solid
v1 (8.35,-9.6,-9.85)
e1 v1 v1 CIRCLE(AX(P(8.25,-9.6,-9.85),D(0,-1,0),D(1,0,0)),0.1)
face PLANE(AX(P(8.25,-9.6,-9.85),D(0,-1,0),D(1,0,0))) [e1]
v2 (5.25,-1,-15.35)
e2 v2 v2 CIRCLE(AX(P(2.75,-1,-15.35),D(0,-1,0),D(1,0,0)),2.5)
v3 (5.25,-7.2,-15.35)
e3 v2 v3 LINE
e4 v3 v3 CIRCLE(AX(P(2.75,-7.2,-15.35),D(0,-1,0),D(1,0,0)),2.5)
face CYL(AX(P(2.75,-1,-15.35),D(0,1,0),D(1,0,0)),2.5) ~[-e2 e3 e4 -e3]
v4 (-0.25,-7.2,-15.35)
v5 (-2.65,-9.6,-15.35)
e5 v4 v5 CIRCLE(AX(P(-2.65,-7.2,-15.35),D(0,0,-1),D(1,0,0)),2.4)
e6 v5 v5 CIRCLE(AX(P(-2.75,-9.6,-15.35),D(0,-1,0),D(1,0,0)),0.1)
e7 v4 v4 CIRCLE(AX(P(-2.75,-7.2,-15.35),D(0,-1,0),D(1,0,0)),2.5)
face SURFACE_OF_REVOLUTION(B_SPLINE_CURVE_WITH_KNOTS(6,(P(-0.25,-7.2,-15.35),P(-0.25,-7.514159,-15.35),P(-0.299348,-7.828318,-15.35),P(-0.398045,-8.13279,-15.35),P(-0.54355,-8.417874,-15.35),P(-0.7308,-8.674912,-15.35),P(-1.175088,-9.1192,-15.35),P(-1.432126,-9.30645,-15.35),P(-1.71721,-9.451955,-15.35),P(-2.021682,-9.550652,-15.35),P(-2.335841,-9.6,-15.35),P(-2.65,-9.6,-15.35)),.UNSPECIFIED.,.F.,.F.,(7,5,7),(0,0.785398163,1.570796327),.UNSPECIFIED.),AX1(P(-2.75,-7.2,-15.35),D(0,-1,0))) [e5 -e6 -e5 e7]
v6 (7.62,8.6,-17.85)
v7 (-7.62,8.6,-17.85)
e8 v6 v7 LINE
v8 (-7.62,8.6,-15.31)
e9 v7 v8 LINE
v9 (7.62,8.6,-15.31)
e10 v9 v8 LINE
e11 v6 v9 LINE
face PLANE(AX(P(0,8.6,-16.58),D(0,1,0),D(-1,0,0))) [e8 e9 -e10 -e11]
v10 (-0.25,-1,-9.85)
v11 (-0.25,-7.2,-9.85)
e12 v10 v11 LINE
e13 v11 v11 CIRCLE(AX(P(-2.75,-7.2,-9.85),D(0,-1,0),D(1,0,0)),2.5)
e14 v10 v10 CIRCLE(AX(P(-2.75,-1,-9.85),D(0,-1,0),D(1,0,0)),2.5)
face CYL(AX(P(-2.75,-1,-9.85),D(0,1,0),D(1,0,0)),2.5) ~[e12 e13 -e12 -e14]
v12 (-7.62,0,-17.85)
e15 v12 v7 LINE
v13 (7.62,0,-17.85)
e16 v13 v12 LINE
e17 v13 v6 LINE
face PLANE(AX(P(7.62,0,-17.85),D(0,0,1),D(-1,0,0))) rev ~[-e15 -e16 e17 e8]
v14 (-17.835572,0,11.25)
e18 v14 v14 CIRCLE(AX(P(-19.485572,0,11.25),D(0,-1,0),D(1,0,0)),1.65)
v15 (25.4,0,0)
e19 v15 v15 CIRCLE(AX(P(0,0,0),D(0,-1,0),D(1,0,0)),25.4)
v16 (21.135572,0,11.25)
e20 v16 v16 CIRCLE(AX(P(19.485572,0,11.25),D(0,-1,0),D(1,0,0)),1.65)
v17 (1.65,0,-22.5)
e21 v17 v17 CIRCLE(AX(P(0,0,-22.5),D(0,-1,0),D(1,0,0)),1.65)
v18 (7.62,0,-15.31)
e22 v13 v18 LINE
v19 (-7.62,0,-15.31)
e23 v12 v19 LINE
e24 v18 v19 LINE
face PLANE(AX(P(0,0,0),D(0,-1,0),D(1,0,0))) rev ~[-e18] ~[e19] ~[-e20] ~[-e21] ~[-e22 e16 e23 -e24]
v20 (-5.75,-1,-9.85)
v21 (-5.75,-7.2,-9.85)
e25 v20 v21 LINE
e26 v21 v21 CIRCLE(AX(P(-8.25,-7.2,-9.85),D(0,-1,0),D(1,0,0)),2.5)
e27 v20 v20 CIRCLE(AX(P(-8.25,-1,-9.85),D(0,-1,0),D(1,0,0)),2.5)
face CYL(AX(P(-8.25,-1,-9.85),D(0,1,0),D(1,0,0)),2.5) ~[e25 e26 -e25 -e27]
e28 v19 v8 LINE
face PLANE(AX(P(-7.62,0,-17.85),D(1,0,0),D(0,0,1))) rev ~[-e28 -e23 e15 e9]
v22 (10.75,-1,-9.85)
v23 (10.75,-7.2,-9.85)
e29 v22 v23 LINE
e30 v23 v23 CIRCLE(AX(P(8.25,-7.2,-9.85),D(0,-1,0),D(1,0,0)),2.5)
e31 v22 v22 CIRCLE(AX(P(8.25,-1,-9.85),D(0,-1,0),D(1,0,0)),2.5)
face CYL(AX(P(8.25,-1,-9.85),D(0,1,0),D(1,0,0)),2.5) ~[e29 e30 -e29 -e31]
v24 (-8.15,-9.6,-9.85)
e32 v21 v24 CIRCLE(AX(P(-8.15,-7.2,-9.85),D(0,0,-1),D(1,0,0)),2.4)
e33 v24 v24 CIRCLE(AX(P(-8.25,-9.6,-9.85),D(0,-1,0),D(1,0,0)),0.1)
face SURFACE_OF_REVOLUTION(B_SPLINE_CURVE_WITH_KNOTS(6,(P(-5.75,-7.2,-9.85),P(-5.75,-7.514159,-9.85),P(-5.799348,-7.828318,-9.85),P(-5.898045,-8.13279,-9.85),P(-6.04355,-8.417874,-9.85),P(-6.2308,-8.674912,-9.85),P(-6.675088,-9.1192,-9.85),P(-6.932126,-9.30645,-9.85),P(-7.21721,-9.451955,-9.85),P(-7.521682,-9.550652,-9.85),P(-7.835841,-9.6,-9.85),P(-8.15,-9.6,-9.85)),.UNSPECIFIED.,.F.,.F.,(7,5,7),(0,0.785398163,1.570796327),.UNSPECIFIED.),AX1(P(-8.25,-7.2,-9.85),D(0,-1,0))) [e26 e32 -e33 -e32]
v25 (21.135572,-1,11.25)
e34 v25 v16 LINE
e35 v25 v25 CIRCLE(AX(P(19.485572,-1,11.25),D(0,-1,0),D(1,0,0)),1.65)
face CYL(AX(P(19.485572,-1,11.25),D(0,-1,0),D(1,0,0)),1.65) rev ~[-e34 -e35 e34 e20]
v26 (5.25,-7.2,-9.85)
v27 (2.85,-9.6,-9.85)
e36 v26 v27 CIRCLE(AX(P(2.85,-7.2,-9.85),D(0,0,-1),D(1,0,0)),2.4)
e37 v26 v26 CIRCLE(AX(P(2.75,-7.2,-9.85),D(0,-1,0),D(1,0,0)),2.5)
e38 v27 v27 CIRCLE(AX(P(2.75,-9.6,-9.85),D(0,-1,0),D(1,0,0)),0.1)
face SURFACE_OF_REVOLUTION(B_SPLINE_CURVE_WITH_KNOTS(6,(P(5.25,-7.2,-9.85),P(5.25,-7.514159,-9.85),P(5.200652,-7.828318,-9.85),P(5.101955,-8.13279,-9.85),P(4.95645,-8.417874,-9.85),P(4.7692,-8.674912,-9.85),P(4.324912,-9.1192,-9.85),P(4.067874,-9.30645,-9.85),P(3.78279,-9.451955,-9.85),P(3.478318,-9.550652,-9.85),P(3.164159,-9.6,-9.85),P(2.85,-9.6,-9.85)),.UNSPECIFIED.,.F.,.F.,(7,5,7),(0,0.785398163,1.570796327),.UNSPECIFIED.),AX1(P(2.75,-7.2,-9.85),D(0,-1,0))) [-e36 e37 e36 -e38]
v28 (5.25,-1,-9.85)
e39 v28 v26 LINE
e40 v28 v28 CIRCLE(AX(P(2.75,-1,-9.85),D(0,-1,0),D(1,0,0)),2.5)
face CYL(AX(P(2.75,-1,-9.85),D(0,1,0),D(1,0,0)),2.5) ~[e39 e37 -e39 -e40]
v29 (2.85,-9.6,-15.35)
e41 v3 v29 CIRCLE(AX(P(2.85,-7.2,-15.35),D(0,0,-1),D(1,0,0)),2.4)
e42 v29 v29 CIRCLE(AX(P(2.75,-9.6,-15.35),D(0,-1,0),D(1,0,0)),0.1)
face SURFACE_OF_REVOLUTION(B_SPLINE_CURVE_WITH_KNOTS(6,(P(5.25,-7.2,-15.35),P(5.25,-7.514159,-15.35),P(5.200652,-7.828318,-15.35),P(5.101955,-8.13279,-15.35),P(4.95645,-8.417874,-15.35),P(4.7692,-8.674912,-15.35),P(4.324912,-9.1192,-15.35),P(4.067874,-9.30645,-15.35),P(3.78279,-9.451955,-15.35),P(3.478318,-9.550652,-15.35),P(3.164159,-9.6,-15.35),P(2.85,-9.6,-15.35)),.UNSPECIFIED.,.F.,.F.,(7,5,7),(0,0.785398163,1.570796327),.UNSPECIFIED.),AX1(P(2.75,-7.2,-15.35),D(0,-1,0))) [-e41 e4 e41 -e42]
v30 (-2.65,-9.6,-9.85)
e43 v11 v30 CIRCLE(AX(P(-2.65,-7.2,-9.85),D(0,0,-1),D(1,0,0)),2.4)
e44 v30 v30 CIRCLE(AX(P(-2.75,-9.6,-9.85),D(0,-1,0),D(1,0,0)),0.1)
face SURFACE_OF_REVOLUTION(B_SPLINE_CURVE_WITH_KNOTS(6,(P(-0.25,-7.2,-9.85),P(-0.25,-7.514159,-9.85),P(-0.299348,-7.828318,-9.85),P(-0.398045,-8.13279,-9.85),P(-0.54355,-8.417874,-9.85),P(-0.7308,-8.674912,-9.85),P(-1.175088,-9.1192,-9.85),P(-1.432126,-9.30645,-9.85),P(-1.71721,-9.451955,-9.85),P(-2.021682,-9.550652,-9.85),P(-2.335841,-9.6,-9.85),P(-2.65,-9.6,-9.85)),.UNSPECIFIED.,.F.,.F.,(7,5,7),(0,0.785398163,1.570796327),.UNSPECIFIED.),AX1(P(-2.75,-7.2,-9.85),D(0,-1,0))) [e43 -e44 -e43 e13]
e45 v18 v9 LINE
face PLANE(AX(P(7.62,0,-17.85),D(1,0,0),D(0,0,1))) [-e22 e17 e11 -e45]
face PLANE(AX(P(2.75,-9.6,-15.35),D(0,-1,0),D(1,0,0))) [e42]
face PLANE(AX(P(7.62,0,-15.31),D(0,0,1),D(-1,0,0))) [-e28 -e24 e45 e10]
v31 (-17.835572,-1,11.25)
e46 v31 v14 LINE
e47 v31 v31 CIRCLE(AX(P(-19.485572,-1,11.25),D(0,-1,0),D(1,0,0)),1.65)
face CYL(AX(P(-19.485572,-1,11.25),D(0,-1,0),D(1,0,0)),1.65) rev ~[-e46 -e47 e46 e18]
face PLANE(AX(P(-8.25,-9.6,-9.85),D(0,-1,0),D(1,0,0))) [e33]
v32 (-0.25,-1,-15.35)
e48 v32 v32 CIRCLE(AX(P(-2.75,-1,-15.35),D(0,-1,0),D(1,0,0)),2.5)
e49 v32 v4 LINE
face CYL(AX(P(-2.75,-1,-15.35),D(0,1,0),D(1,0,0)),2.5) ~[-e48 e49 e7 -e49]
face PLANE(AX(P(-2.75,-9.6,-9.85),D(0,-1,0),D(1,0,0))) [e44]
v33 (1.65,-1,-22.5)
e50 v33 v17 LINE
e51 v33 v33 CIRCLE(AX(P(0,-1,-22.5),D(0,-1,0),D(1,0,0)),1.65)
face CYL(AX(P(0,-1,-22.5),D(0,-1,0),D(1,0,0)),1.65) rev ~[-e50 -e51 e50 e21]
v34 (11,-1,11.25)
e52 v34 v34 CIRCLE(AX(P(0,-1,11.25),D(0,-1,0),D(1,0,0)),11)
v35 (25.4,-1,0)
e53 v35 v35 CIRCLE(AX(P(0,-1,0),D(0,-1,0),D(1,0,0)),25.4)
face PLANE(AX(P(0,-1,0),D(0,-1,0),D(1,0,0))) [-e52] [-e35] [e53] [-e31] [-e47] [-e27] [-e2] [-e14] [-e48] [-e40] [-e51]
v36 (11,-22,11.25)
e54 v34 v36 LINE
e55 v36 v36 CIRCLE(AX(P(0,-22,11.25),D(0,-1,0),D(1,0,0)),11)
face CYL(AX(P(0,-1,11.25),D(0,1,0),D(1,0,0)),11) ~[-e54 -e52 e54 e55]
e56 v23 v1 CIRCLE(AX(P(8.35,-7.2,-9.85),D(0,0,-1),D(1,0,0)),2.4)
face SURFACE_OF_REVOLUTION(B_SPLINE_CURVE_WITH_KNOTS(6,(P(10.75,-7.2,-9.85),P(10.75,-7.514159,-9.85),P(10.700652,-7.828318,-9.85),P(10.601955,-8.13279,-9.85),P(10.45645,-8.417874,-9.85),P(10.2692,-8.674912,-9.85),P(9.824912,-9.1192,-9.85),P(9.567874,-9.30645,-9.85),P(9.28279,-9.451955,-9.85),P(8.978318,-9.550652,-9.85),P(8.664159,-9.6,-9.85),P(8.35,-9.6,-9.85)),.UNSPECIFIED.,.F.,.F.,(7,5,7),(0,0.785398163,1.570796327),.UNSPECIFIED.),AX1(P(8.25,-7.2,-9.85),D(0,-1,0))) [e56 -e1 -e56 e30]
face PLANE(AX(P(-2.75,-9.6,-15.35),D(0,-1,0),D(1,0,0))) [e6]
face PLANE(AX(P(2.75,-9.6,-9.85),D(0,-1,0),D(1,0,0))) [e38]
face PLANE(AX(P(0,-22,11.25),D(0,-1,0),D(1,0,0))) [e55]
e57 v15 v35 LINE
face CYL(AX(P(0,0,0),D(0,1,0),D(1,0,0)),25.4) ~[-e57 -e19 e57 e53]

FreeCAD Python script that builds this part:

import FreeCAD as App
import Part
import Sketcher
from FreeCAD import Vector
Q = App.Units.Quantity


def edges_at(feature, points):
    """Names of the edges that pass closest to the given points."""
    edges = feature.Shape.Edges
    near = lambda p: min(range(len(edges)), key=lambda i: edges[i].distToShape(Part.Vertex(*p))[0])
    return sorted({f"Edge{near(p) + 1}" for p in points})

doc = App.newDocument("Part")
body = doc.addObject("PartDesign::Body", "Body")

sketch1 = doc.addObject("Sketcher::SketchObject", "Sketch")
body.addObject(sketch1)
sketch1.AttachmentSupport = (doc.XZ_Plane, [""])
sketch1.MapMode = "FlatFace"
sketch1.addGeometry(Part.Circle(Vector(0, 0, 0), Vector(0, 0, 1), 25), False)
sketch1.addConstraint([
    Sketcher.Constraint("Coincident", 0, 3, -1, 1),
    Sketcher.Constraint("Diameter", 0, Q("50.8 mm")),
])
pad1 = doc.addObject("PartDesign::Pad", "Pad")
body.addObject(pad1)
pad1.Profile = sketch1
pad1.Length = 1

sketch2 = doc.addObject("Sketcher::SketchObject", "Sketch001")
body.addObject(sketch2)
sketch2.AttachmentSupport = (doc.XZ_Plane, [""])
sketch2.MapMode = "FlatFace"
sketch2.AttachmentOffset = App.Placement(Vector(0, 0, 1), App.Rotation())
sketch2.addGeometry([
    Part.Circle(Vector(-19.5, 11.2, 0), Vector(0, 0, 1), 1.6),
    Part.Circle(Vector(0, -22.5, 0), Vector(0, 0, 1), 1.6),
    Part.Circle(Vector(19.5, 11.2, 0), Vector(0, 0, 1), 1.6),
], False)
sketch2.addConstraint([
    Sketcher.Constraint("Equal", 0, 1),
    Sketcher.Constraint("Equal", 1, 2),
    Sketcher.Constraint("Symmetric", 0, 3, 2, 3, -2),
    Sketcher.Constraint("PointOnObject", 1, 3, -2),
    Sketcher.Constraint("Diameter", 0, Q("3.3 mm")),
    Sketcher.Constraint("DistanceY", 1, 3, -1, 1, Q("22.5 mm")),
    Sketcher.Constraint("DistanceY", -1, 1, 0, 3, Q("11.25 mm")),
    Sketcher.Constraint("DistanceX", 0, 3, -1, 1, Q("19.485572 mm")),
])
pocket1 = doc.addObject("PartDesign::Pocket", "Pocket")
body.addObject(pocket1)
pocket1.Profile = sketch2
pocket1.Type = "ThroughAll"

sketch3 = doc.addObject("Sketcher::SketchObject", "Sketch002")
body.addObject(sketch3)
sketch3.AttachmentSupport = (doc.XZ_Plane, [""])
sketch3.MapMode = "FlatFace"
sketch3.AttachmentOffset = App.Placement(Vector(0, 0, 1), App.Rotation())
sketch3.addGeometry(Part.Circle(Vector(0, 11, 0), Vector(0, 0, 1), 11), False)
sketch3.addConstraint([
    Sketcher.Constraint("PointOnObject", 0, 3, -2),
    Sketcher.Constraint("Diameter", 0, Q("22 mm")),
    Sketcher.Constraint("DistanceY", -1, 1, 0, 3, Q("11.25 mm")),
])
pad2 = doc.addObject("PartDesign::Pad", "Pad001")
body.addObject(pad2)
pad2.Profile = sketch3
pad2.Length = 21

sketch4 = doc.addObject("Sketcher::SketchObject", "Sketch003")
body.addObject(sketch4)
sketch4.AttachmentSupport = (doc.XZ_Plane, [""])
sketch4.MapMode = "FlatFace"
sketch4.AttachmentOffset = App.Placement(Vector(0, 0, 1), App.Rotation())
sketch4.addGeometry([
    Part.Circle(Vector(-8.2, -9.8, 0), Vector(0, 0, 1), 2.5),
    Part.Circle(Vector(-2.8, -15.3, 0), Vector(0, 0, 1), 2.5),
    Part.Circle(Vector(-2.8, -9.8, 0), Vector(0, 0, 1), 2.5),
    Part.Circle(Vector(2.8, -15.3, 0), Vector(0, 0, 1), 2.5),
    Part.Circle(Vector(8.2, -9.8, 0), Vector(0, 0, 1), 2.5),
    Part.Circle(Vector(2.8, -9.8, 0), Vector(0, 0, 1), 2.5),
], False)
sketch4.addConstraint([
    Sketcher.Constraint("Equal", 0, 1),
    Sketcher.Constraint("Equal", 1, 2),
    Sketcher.Constraint("Equal", 2, 3),
    Sketcher.Constraint("Equal", 3, 4),
    Sketcher.Constraint("Equal", 4, 5),
    Sketcher.Constraint("Symmetric", 1, 3, 3, 3, -2),
    Sketcher.Constraint("Symmetric", 0, 3, 4, 3, -2),
    Sketcher.Constraint("Symmetric", 2, 3, 5, 3, -2),
    Sketcher.Constraint("Horizontal", 0, 3, 2, 3),
    Sketcher.Constraint("Vertical", 1, 3, 2, 3),
    Sketcher.Constraint("Diameter", 0, Q("5 mm")),
    Sketcher.Constraint("DistanceX", 0, 3, 3, 3, Q("11 mm")),
    Sketcher.Constraint("DistanceX", 0, 3, 1, 3, Q("5.5 mm")),
    Sketcher.Constraint("DistanceY", 1, 3, 0, 3, Q("5.5 mm")),
    Sketcher.Constraint("DistanceY", 0, 3, -1, 1, Q("9.85 mm")),
])
pad3 = doc.addObject("PartDesign::Pad", "Pad002")
body.addObject(pad3)
pad3.Profile = sketch4
pad3.Length = 8.6
doc.recompute()

fillet = doc.addObject("PartDesign::Fillet", "Fillet")
body.addObject(fillet)
fillet.Base = (pad3, edges_at(pad3, [
    (-10.75, -9.6, -9.85),
    (-5.25, -9.6, -9.85),
    (0.25, -9.6, -9.85),
    (5.75, -9.6, -9.85),
    (0.25, -9.6, -15.35),
    (-5.25, -9.6, -15.35),
]))
fillet.Radius = 2.4

sketch5 = doc.addObject("Sketcher::SketchObject", "Sketch004")
body.addObject(sketch5)
sketch5.AttachmentSupport = (doc.XZ_Plane, [""])
sketch5.MapMode = "FlatFace"
sketch5.addGeometry([
    Part.LineSegment(Vector(7.6, -15.3, 0), Vector(7.6, -17.9, 0)),
    Part.LineSegment(Vector(7.6, -17.9, 0), Vector(-7.6, -17.9, 0)),
    Part.LineSegment(Vector(-7.6, -17.9, 0), Vector(-7.6, -15.3, 0)),
    Part.LineSegment(Vector(-7.6, -15.3, 0), Vector(7.6, -15.3, 0)),
], False)
sketch5.addConstraint([
    Sketcher.Constraint("Coincident", 0, 2, 1, 1),
    Sketcher.Constraint("Coincident", 1, 2, 2, 1),
    Sketcher.Constraint("Coincident", 2, 2, 3, 1),
    Sketcher.Constraint("Coincident", 3, 2, 0, 1),
    Sketcher.Constraint("Vertical", 0),
    Sketcher.Constraint("Horizontal", 1),
    Sketcher.Constraint("Vertical", 2),
    Sketcher.Constraint("Horizontal", 3),
    Sketcher.Constraint("DistanceX", 1, 2, 1, 1, Q("15.24 mm")),
    Sketcher.Constraint("DistanceY", 0, 2, 0, 1, Q("2.54 mm")),
    Sketcher.Constraint("DistanceX", -1, 1, 0, 2, Q("7.62 mm")),
    Sketcher.Constraint("DistanceY", 0, 2, -1, 1, Q("17.85 mm")),
])
pad4 = doc.addObject("PartDesign::Pad", "Pad003")
body.addObject(pad4)
pad4.Profile = sketch5
pad4.Length = 8.6
pad4.Reversed = True

doc.recompute()
